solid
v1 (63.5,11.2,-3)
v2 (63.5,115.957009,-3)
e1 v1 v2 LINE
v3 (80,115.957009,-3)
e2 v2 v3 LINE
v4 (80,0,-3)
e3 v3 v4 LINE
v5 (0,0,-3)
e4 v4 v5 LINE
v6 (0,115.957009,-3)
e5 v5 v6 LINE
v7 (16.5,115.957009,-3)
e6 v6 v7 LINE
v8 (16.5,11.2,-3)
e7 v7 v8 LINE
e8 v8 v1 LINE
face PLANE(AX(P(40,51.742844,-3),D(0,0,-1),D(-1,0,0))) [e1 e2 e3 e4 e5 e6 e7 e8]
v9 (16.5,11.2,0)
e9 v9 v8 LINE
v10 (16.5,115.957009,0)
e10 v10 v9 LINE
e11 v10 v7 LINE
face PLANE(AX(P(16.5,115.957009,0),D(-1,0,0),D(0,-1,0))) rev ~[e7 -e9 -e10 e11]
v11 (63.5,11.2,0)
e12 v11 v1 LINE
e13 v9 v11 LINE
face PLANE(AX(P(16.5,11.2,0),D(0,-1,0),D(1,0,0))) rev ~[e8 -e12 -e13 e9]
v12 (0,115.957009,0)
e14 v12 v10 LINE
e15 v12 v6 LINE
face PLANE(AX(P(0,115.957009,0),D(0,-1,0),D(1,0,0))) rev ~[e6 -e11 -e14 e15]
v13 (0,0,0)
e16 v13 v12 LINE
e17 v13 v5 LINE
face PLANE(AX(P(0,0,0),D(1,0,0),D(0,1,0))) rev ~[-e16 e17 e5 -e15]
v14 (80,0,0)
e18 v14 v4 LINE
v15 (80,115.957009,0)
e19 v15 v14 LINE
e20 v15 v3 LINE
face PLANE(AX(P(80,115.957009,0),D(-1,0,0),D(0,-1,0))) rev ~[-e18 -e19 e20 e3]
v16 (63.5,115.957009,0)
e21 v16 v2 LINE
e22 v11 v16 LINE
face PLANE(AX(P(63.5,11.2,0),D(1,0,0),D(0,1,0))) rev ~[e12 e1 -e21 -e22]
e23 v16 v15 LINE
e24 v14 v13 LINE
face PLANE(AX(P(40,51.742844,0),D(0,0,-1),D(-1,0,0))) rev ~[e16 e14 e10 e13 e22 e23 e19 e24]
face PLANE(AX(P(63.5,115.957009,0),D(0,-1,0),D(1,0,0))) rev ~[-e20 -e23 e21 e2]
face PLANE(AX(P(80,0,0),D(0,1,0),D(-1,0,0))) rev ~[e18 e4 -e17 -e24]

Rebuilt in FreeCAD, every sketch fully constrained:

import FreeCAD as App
import Part
import Sketcher

V = App.Vector


def add_polygon(sketch, points):
    """Adds a closed chain of lines whose ends are joined by coincident constraints."""
    first, n = sketch.GeometryCount, len(points)
    for a, b in zip(points, points[1:] + points[:1]):
        sketch.addGeometry(Part.LineSegment(App.Vector(*a, 0), App.Vector(*b, 0)), False)
    for i in range(n):
        sketch.addConstraint(Sketcher.Constraint("Coincident", first + i, 2, first + (i + 1) % n, 1))

doc = App.newDocument("Part")
body = doc.addObject("PartDesign::Body", "Body")

# Sketch on XY plane
sketch1 = doc.addObject("Sketcher::SketchObject", "Sketch")
body.addObject(sketch1)
sketch1.AttachmentSupport = (doc.XY_Plane, [""])
sketch1.MapMode = "FlatFace"
add_polygon(sketch1, [(16, 11), (16, 116), (0, 116), (0, 0), (80, 0), (80, 116), (64, 116), (64, 11)])  # lines 0-7
sketch1.addConstraint(Sketcher.Constraint("Vertical", 0))
sketch1.addConstraint(Sketcher.Constraint("Horizontal", 1))
sketch1.addConstraint(Sketcher.Constraint("Vertical", 2))
sketch1.addConstraint(Sketcher.Constraint("Horizontal", 3))
sketch1.addConstraint(Sketcher.Constraint("Vertical", 4))
sketch1.addConstraint(Sketcher.Constraint("Horizontal", 5))
sketch1.addConstraint(Sketcher.Constraint("Vertical", 6))
sketch1.addConstraint(Sketcher.Constraint("Horizontal", 7))
sketch1.addConstraint(Sketcher.Constraint("Coincident", 2, 2, -1, 1))
sketch1.addConstraint(Sketcher.Constraint("Horizontal", 1, 2, 4, 2))
sketch1.addConstraint(Sketcher.Constraint("Equal", 1, 5))
sketch1.addConstraint(Sketcher.Constraint("DistanceX", 3, 1, 3, 2, 80.0))
sketch1.addConstraint(Sketcher.Constraint("DistanceX", 7, 2, 7, 1, 47.0))
sketch1.addConstraint(Sketcher.Constraint("DistanceY", -1, 1, 6, 2, 11.2))
sketch1.addConstraint(Sketcher.Constraint("DistanceY", 0, 1, 0, 2, 104.757009))
pad1 = doc.addObject("PartDesign::Pad", "Pad")
body.addObject(pad1)
pad1.Profile = sketch1
pad1.Length = 3
pad1.Reversed = True

doc.recompute()
